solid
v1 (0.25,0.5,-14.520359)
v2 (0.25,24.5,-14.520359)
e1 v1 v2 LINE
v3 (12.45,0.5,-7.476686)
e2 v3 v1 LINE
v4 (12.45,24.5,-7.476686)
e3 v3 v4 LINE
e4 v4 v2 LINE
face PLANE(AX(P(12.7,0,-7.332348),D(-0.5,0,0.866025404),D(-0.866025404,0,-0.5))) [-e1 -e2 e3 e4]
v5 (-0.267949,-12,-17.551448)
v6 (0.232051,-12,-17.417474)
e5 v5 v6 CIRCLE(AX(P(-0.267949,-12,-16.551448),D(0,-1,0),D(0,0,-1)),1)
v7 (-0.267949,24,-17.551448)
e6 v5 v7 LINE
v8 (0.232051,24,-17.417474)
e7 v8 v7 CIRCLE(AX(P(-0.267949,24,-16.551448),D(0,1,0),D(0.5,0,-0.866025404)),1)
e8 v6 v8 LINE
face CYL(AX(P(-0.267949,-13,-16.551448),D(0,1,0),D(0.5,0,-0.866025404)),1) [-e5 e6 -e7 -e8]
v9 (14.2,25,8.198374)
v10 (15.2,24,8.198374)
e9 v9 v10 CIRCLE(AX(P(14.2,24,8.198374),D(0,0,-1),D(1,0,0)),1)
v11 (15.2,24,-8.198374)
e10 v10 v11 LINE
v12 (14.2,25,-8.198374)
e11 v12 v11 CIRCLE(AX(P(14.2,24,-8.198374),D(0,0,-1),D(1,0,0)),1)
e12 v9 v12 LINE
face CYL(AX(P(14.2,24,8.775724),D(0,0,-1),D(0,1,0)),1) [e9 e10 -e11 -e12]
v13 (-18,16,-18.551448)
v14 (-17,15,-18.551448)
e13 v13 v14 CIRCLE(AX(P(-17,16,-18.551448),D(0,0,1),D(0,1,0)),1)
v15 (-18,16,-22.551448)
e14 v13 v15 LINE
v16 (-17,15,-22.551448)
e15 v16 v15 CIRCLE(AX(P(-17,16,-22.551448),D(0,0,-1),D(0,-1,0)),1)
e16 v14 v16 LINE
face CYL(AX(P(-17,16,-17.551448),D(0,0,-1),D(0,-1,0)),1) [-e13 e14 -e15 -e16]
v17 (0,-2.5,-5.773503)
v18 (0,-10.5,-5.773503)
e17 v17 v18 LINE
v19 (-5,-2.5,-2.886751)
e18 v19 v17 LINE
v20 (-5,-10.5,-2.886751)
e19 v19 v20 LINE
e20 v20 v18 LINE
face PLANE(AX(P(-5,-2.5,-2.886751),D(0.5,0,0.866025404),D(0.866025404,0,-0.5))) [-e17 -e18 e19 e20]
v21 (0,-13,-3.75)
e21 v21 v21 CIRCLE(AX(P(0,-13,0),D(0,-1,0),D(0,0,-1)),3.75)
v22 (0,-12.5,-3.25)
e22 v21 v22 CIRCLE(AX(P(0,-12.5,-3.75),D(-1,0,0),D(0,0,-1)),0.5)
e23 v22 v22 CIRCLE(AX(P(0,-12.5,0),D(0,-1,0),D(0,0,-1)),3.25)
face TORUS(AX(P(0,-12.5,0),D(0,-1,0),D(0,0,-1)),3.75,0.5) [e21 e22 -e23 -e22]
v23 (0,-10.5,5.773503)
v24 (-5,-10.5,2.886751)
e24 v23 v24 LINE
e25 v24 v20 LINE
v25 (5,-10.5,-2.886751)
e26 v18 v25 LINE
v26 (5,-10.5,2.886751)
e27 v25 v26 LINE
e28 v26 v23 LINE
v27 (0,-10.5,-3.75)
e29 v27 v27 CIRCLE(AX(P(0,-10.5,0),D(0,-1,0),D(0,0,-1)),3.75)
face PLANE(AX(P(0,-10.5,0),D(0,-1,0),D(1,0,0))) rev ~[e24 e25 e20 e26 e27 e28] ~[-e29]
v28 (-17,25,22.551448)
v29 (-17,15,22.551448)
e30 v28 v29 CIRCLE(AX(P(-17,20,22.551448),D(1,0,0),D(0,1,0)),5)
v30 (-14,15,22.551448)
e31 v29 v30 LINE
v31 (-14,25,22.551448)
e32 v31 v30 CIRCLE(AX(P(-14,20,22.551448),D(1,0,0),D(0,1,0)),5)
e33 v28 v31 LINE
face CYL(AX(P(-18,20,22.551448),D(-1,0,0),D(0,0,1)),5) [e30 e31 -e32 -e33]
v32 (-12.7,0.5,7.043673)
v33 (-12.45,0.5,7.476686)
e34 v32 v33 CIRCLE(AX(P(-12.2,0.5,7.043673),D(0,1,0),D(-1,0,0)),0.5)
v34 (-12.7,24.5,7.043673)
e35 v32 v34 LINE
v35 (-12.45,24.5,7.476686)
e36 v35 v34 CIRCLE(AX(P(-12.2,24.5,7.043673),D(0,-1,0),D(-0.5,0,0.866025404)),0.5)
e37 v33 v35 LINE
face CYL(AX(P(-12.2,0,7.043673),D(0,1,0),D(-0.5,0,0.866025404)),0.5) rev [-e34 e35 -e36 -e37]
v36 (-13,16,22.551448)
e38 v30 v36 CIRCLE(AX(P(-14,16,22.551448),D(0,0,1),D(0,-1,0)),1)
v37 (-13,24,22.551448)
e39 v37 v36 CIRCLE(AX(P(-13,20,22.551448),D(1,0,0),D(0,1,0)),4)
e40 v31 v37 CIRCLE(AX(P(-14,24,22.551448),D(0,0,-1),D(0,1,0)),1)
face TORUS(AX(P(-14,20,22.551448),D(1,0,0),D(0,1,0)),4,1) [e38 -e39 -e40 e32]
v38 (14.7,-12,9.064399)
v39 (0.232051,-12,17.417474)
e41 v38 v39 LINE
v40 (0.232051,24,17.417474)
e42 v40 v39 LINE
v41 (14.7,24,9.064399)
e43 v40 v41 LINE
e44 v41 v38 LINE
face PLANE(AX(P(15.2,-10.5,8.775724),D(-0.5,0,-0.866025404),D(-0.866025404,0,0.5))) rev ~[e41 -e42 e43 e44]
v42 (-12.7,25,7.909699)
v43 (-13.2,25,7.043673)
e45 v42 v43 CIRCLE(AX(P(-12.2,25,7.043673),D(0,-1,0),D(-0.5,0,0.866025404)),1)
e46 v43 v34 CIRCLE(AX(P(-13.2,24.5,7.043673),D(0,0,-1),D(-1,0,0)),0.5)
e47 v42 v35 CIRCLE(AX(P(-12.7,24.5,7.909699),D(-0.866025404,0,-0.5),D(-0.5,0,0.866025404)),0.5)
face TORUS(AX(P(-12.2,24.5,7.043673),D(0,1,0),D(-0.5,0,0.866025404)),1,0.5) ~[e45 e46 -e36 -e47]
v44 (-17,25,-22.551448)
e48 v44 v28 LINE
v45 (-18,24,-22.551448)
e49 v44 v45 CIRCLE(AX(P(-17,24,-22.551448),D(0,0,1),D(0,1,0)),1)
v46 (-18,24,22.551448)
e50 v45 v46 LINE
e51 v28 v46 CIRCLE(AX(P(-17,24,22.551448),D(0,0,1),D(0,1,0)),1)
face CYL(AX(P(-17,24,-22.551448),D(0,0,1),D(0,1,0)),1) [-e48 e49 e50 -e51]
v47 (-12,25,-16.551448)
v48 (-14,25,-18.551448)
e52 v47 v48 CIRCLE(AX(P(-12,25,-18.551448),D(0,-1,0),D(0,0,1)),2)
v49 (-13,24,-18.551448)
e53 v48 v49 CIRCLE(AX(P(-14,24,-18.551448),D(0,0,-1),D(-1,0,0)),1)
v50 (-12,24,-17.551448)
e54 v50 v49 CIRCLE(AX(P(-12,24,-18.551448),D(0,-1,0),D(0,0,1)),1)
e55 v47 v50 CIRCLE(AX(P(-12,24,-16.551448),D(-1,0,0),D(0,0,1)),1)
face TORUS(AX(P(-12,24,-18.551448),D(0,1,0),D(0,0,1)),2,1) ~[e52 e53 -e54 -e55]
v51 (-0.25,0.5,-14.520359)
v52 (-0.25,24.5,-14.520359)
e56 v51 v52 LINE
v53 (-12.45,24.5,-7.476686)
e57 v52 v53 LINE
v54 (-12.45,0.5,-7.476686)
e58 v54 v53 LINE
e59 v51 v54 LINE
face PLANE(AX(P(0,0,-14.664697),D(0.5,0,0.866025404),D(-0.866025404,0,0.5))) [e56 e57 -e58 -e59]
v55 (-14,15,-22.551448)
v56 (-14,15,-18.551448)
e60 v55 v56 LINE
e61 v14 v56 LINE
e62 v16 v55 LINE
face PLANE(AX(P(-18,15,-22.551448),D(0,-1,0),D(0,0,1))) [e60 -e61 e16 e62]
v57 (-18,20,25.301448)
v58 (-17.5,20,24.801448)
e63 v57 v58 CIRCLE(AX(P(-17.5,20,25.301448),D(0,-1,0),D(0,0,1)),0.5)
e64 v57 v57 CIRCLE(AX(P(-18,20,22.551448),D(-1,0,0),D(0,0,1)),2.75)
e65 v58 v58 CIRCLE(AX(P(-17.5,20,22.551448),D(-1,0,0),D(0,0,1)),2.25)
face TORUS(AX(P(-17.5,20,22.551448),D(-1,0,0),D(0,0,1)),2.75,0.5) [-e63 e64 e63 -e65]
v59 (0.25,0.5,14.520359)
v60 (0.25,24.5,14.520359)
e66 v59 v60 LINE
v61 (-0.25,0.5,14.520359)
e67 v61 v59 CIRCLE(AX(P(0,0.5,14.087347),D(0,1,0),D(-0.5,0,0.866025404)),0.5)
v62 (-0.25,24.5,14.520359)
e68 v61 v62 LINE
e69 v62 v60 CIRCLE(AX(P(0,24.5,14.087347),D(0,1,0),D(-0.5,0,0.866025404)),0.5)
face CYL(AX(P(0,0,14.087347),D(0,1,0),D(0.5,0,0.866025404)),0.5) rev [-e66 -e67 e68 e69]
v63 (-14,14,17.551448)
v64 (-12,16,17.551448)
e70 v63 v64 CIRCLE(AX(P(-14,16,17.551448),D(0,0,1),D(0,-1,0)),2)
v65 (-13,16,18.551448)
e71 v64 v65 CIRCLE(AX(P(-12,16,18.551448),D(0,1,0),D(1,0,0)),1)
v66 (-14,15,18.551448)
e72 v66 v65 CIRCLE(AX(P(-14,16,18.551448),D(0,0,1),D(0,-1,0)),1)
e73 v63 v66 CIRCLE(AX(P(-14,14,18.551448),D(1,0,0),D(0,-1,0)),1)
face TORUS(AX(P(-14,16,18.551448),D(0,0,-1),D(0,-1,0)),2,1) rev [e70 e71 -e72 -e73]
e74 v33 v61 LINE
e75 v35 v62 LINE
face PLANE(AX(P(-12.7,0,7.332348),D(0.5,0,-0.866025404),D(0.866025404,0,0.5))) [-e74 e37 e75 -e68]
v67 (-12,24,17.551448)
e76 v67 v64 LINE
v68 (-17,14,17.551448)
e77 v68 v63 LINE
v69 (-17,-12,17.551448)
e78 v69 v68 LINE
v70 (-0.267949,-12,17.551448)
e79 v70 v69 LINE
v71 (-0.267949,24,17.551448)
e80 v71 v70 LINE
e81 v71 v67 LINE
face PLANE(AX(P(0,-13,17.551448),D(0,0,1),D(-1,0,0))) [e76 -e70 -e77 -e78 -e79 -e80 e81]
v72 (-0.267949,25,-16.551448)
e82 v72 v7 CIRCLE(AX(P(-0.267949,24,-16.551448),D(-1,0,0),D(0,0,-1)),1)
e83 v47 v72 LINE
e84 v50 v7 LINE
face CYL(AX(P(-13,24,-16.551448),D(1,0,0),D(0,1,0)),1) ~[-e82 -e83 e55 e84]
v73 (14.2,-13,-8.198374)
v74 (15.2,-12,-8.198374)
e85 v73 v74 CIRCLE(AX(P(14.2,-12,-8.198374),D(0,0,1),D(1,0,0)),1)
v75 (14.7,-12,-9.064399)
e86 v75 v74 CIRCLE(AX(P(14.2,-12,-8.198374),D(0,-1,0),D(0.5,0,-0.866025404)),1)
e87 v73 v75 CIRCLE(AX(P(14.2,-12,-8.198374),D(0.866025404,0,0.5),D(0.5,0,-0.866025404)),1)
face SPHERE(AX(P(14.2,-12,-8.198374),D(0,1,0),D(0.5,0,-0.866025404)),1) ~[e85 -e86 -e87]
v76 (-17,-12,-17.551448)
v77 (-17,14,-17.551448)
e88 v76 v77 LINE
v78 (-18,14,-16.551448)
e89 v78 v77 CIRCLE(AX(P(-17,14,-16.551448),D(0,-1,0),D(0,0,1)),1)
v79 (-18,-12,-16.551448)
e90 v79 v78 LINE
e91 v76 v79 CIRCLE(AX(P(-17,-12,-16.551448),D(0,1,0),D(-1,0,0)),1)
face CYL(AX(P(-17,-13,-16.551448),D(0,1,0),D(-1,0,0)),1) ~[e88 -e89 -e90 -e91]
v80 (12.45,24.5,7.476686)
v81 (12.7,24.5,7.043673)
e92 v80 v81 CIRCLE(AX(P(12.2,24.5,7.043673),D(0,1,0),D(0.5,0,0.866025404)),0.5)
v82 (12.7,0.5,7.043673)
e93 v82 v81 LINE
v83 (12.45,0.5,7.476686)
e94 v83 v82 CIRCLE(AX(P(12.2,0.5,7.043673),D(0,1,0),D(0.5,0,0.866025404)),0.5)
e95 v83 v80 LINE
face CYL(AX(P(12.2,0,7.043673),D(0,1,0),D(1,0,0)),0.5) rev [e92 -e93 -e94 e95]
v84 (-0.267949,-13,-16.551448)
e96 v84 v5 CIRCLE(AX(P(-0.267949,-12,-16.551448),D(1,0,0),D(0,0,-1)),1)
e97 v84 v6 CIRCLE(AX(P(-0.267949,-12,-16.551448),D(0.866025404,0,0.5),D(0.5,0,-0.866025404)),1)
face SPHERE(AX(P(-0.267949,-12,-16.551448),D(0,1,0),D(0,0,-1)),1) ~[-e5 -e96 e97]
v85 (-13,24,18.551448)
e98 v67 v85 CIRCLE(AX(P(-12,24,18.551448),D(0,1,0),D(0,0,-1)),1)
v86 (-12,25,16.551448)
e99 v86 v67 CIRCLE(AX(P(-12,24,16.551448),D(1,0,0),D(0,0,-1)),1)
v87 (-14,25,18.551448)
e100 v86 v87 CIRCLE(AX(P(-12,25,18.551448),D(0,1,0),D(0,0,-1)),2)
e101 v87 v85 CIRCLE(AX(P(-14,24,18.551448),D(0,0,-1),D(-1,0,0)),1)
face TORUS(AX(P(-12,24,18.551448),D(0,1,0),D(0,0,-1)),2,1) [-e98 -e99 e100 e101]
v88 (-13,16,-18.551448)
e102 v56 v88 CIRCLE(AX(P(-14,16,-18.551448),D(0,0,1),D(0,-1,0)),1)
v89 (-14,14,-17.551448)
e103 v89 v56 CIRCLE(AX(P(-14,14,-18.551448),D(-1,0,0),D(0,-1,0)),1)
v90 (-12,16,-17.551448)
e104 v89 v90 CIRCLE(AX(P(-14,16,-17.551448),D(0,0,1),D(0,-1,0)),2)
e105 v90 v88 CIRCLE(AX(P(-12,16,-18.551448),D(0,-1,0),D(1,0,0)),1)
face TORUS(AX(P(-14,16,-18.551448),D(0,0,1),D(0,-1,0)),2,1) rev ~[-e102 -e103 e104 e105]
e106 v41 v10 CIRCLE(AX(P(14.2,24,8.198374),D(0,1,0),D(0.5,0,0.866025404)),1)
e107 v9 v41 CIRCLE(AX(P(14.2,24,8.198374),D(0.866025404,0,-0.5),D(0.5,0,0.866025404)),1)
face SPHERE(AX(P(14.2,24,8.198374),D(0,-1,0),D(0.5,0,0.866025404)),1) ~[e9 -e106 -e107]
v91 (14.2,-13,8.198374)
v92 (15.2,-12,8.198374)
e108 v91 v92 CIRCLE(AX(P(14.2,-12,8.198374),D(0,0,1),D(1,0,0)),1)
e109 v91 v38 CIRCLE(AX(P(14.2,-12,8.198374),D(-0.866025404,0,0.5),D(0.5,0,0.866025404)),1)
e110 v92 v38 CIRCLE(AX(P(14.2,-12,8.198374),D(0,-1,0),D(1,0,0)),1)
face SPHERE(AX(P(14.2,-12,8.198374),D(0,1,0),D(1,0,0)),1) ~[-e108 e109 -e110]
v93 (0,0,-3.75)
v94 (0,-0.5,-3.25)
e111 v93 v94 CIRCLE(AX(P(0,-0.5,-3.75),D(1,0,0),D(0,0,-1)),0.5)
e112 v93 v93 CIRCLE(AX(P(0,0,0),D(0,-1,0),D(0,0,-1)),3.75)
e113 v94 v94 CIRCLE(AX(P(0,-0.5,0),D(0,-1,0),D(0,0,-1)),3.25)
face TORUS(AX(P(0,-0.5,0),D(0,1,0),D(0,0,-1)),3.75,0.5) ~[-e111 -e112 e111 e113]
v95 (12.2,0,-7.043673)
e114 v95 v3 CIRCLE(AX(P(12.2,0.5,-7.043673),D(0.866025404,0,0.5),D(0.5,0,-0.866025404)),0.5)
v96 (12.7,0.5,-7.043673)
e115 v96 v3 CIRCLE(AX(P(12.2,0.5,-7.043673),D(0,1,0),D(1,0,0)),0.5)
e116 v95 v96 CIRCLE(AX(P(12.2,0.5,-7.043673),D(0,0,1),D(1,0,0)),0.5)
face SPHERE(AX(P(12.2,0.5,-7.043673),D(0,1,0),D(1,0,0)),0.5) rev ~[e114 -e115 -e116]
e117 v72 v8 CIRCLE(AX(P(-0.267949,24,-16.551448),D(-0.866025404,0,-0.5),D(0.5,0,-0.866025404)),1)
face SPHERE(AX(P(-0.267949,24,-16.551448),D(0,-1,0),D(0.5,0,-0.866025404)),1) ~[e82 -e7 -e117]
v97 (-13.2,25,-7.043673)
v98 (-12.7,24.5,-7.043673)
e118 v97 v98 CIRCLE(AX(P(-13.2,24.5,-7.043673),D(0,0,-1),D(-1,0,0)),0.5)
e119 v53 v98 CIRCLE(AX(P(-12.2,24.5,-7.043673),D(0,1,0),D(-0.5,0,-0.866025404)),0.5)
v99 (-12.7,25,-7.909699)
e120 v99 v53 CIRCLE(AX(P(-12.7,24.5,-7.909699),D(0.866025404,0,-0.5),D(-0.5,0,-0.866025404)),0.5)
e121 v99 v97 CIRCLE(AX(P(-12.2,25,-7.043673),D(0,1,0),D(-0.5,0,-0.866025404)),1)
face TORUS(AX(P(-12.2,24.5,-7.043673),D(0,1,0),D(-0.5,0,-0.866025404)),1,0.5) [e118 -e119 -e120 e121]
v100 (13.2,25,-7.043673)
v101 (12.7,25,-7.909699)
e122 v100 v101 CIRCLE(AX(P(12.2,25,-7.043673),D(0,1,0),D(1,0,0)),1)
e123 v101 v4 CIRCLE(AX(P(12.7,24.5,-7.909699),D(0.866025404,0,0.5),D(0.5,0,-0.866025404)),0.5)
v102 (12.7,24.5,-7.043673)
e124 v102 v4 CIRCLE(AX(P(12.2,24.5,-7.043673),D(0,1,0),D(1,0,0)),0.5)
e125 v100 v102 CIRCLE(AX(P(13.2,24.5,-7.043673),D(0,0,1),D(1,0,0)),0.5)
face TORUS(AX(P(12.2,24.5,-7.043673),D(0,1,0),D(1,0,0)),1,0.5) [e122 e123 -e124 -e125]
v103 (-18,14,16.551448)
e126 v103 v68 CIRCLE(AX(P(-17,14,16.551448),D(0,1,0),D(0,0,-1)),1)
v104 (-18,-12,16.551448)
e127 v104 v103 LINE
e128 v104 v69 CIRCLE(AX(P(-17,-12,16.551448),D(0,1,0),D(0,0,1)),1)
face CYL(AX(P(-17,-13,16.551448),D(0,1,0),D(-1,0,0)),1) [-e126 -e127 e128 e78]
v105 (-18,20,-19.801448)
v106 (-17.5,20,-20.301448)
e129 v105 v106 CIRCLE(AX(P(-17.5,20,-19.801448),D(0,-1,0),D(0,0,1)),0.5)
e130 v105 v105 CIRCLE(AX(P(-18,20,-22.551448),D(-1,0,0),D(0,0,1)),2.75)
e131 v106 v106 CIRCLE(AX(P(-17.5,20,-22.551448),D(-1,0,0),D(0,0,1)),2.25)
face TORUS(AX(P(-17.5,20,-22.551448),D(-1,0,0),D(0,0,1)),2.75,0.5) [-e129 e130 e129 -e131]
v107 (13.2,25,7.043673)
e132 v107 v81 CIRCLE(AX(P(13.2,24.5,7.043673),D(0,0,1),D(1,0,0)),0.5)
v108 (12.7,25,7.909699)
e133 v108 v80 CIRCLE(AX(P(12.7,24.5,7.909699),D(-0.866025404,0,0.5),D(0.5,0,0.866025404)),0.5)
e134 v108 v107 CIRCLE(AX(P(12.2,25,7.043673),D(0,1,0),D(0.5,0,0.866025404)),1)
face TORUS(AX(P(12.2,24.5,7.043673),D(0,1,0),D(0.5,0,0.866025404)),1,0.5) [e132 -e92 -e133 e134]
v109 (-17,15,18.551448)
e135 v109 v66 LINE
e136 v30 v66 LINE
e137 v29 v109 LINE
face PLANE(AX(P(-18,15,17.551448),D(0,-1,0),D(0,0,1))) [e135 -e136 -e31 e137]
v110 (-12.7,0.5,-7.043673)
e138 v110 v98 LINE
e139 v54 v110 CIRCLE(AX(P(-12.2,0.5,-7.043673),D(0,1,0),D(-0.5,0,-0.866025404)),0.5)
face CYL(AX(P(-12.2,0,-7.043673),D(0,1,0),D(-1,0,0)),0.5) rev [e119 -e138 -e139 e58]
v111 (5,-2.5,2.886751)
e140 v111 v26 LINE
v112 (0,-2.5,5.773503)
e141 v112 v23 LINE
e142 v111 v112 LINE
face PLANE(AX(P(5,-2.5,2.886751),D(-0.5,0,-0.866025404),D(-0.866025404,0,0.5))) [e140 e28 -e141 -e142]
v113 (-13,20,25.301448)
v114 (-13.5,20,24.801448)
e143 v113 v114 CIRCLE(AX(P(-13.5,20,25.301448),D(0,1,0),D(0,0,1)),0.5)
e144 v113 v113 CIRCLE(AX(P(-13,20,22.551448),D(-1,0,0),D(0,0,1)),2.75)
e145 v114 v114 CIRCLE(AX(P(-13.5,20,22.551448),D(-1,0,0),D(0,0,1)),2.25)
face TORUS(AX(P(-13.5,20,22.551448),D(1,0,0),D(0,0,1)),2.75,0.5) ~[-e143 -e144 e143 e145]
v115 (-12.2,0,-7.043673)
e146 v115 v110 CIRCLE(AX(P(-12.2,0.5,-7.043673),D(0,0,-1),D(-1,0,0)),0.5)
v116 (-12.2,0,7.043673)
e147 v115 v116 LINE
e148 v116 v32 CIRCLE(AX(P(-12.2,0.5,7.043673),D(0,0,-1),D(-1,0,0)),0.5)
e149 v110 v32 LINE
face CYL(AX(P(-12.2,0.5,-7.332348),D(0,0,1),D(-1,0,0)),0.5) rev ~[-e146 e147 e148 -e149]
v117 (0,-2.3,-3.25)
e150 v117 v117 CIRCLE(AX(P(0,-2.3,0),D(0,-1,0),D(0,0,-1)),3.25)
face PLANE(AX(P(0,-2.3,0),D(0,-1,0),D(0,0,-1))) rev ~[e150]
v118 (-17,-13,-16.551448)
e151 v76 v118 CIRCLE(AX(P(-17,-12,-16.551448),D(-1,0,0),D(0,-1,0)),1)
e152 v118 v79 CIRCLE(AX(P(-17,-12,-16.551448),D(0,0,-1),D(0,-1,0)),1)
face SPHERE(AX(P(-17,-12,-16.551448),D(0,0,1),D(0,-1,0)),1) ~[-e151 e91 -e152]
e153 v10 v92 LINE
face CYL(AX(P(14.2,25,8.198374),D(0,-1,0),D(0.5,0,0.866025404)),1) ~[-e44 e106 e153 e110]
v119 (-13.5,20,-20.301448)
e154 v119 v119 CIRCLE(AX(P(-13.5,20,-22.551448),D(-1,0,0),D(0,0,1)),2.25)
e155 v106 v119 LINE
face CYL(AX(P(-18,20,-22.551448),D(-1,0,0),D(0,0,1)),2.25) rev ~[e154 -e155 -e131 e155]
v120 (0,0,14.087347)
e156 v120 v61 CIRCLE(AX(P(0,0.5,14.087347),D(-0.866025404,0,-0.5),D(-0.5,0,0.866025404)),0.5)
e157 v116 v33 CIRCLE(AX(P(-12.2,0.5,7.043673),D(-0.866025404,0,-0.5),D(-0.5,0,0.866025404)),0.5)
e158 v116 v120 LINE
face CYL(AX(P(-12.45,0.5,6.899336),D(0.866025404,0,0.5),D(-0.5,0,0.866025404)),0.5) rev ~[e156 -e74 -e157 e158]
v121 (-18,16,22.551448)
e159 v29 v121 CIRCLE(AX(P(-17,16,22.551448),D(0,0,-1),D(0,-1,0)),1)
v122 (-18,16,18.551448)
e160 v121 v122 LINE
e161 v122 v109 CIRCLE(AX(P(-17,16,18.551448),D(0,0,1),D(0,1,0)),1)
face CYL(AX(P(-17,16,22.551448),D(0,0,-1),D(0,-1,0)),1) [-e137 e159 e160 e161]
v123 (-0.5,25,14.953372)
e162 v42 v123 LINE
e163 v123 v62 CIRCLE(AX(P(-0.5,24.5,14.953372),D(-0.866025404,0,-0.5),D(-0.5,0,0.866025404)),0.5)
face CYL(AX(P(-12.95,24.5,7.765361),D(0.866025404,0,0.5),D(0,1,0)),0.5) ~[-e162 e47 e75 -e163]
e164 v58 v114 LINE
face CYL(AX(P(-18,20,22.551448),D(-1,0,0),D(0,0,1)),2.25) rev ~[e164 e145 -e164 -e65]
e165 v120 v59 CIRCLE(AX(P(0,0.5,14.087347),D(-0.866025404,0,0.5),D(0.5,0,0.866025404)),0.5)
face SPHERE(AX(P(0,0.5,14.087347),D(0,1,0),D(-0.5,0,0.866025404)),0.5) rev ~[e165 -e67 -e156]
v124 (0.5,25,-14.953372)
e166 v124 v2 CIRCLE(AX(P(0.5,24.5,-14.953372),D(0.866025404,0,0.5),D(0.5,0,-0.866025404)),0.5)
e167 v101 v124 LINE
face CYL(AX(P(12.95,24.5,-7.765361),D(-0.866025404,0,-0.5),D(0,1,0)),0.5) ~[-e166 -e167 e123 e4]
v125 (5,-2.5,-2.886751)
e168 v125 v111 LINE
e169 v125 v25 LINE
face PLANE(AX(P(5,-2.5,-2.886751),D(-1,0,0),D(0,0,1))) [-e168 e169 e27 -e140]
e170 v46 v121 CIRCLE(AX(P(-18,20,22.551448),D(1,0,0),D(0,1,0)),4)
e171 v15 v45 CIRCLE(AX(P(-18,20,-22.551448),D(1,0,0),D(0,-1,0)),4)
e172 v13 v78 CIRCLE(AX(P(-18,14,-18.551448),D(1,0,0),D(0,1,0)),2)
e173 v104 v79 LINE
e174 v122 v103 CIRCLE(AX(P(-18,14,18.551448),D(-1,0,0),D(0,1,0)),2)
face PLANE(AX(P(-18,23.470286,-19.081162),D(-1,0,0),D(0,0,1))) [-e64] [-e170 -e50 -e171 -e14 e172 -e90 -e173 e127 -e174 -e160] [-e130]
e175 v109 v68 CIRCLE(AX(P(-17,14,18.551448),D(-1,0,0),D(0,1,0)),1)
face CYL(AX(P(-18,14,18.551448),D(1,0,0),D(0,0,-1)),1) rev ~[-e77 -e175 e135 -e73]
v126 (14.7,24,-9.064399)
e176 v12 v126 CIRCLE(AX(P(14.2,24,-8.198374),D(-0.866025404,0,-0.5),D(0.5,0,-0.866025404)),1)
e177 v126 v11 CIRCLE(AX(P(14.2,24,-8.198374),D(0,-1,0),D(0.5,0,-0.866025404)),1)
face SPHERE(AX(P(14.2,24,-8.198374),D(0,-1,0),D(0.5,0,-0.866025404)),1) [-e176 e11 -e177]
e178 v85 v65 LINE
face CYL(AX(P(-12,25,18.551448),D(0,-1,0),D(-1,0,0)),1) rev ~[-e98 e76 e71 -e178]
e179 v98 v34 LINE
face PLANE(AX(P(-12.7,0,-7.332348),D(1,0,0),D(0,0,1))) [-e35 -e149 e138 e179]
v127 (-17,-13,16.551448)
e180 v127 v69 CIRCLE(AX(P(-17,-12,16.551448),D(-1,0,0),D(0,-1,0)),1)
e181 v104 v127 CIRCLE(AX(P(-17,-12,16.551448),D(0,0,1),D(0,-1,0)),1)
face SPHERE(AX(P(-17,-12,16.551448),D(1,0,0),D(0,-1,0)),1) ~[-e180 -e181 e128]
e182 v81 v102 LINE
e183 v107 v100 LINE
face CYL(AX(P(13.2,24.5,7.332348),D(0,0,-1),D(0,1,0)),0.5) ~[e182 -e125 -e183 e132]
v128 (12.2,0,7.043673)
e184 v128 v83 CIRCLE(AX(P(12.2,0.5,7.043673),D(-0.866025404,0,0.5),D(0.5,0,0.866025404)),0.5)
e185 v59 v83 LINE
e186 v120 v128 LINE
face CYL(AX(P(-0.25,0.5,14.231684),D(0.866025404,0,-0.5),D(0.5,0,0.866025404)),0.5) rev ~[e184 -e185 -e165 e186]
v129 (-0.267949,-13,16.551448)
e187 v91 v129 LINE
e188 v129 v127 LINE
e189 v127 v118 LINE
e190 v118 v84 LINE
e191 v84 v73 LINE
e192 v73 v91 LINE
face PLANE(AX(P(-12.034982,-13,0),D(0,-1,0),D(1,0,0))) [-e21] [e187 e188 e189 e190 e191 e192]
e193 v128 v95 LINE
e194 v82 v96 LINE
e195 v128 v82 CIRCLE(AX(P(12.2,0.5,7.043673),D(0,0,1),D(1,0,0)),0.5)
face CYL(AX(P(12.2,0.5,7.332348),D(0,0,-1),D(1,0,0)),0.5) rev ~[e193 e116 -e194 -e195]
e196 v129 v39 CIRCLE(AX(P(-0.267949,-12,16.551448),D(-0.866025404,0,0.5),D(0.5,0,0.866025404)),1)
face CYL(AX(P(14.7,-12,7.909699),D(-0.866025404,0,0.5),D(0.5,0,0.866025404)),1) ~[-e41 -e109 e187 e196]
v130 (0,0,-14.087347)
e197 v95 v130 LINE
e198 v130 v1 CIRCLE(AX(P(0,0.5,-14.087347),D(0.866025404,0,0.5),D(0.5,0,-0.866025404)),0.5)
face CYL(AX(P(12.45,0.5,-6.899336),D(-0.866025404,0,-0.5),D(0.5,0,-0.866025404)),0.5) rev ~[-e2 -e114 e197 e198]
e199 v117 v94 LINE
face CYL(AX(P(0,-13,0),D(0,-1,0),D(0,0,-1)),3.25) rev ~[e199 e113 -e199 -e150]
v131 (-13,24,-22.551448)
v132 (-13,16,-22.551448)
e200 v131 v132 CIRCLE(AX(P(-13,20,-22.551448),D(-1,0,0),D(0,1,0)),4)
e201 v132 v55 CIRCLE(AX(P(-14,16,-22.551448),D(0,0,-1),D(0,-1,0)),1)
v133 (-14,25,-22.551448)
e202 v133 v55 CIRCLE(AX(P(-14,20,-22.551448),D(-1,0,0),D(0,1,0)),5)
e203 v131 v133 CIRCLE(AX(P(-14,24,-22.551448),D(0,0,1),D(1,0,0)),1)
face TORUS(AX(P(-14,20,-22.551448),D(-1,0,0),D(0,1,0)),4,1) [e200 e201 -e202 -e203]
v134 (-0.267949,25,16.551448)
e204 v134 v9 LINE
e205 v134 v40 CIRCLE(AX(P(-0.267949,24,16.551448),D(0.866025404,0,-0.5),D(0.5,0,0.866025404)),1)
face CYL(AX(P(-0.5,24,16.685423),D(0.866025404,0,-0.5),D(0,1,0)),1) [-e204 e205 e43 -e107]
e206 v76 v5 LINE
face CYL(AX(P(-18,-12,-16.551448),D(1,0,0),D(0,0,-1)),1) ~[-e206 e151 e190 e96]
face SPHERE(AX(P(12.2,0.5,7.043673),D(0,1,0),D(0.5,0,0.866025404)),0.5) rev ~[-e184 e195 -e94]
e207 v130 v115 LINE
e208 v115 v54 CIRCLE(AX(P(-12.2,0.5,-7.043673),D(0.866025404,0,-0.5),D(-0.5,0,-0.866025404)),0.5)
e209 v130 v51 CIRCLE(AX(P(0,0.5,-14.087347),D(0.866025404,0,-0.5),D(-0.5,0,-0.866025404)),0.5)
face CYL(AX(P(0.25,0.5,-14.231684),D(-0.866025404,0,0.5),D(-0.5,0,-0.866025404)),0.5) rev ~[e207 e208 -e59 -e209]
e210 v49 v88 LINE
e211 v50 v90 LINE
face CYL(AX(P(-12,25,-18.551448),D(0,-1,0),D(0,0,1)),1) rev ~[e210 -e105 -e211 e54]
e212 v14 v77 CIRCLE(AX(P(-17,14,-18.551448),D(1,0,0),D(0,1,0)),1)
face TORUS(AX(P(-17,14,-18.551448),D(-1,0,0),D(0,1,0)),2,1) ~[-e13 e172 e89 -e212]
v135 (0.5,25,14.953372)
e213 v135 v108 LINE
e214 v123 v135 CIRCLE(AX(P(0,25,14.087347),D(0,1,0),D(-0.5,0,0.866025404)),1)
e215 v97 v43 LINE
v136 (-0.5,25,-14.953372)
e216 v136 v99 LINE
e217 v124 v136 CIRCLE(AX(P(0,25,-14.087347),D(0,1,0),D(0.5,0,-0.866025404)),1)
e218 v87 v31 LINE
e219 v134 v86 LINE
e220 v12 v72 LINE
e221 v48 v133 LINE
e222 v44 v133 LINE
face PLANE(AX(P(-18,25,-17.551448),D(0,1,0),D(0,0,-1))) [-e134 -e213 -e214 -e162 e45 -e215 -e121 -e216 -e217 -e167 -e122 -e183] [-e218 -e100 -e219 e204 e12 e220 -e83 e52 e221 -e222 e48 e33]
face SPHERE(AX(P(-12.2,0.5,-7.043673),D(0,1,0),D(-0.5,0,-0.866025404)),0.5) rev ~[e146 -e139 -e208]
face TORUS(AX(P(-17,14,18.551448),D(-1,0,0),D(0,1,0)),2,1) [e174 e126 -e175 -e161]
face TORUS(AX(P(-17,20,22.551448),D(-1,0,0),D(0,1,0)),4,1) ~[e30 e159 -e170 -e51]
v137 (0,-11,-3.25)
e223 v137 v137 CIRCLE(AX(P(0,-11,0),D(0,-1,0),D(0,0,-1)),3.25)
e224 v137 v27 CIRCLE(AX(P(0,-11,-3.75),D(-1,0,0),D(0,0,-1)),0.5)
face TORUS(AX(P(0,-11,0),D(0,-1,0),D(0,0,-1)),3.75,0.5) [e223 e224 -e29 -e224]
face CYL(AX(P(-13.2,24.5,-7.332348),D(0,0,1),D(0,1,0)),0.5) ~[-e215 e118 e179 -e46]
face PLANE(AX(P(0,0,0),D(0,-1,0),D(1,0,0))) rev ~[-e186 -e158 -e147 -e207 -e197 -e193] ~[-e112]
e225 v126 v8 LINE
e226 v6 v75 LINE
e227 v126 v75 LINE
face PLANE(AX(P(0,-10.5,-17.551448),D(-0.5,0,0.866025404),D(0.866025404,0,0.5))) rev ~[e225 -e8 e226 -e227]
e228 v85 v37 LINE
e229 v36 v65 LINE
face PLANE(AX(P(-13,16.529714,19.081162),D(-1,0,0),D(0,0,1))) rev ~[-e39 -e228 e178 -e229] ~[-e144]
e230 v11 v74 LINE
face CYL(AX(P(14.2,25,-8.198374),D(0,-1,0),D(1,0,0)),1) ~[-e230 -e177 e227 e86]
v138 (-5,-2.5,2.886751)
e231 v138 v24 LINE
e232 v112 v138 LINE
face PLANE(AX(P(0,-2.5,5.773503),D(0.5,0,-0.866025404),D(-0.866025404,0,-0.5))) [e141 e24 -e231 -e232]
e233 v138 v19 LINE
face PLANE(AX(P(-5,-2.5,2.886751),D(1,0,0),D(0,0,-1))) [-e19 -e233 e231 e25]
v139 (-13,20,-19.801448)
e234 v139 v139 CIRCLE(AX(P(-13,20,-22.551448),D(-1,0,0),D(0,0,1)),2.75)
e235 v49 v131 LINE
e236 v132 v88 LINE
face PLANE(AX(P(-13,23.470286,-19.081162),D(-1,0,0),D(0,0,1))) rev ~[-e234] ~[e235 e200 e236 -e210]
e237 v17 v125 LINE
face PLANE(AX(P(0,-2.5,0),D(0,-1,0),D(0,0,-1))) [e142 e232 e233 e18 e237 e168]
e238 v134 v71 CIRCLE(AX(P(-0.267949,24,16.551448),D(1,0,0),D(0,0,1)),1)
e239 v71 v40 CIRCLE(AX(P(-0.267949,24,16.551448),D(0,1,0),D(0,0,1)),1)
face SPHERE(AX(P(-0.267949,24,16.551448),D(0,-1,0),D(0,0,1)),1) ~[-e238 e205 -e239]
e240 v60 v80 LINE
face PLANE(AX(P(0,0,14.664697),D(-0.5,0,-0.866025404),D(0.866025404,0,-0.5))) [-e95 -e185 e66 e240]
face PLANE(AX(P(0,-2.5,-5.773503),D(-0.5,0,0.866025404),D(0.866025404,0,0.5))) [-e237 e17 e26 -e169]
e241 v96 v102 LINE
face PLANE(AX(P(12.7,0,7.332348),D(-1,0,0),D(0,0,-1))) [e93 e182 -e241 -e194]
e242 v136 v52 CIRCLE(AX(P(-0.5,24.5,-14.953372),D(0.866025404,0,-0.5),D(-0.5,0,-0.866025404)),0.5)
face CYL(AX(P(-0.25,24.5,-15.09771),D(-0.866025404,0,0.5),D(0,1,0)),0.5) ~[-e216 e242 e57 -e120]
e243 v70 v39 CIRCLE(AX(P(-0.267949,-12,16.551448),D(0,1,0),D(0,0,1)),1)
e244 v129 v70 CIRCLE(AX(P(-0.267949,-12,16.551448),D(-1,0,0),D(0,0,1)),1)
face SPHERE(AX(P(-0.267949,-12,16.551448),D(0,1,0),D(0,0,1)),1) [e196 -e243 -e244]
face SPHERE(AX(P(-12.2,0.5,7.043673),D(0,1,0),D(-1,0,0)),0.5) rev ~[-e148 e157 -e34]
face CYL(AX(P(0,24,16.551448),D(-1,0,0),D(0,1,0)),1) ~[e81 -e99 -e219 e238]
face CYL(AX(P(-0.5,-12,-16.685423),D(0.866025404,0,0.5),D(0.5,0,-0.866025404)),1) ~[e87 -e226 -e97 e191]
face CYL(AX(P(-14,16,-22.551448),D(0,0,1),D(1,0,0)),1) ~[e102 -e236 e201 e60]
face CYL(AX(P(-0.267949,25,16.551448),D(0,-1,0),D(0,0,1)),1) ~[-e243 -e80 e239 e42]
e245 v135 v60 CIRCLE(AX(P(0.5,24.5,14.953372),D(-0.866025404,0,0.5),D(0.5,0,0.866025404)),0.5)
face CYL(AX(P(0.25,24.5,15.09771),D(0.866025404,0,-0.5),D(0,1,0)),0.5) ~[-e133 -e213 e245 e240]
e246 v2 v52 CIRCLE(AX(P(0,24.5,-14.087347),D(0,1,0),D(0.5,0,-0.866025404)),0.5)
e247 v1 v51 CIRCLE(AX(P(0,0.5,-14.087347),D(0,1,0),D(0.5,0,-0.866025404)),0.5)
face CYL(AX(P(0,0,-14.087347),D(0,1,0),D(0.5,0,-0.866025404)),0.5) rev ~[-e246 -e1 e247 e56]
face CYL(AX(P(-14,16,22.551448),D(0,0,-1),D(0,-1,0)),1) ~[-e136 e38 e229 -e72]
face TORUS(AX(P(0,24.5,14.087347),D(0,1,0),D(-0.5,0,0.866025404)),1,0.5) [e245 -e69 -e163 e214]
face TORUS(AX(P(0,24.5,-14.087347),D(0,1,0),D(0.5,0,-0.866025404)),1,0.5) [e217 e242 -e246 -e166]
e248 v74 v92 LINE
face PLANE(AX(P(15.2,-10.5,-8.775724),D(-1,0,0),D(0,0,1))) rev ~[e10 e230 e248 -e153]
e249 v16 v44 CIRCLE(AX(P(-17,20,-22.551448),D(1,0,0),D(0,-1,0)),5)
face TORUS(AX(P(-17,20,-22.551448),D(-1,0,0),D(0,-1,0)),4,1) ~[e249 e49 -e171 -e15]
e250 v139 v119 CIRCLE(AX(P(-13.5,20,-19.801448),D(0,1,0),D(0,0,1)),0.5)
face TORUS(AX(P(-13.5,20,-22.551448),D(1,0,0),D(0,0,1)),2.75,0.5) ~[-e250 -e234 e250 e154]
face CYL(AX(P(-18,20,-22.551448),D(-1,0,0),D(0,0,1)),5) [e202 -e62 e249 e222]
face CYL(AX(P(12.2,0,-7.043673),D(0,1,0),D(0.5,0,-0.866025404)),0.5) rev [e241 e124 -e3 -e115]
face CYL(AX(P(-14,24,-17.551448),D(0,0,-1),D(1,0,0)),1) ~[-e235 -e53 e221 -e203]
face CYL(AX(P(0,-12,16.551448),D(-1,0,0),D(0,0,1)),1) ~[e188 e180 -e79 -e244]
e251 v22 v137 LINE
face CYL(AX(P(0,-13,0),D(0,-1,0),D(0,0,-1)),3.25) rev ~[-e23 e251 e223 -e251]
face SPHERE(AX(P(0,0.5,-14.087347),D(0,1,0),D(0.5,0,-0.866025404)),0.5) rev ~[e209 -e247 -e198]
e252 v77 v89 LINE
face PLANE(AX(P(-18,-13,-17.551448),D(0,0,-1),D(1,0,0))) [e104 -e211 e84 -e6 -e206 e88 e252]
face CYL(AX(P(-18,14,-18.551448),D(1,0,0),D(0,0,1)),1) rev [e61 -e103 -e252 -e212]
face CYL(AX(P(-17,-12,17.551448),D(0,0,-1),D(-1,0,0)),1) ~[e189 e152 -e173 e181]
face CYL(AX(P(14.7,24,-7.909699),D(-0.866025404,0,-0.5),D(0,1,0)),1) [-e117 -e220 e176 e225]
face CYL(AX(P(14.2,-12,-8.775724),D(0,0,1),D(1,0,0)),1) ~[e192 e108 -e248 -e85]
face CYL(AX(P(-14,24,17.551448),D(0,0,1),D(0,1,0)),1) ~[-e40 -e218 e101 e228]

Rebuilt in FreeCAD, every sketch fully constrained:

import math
import FreeCAD as App
import Part
import Sketcher
Q = App.Units.Quantity


def edges_at(feature, points):
    """Names of the edges that pass closest to the given points."""
    edges = feature.Shape.Edges
    near = lambda p: min(range(len(edges)), key=lambda i: edges[i].distToShape(Part.Vertex(*p))[0])
    return sorted({f"Edge{near(p) + 1}" for p in points})

doc = App.newDocument("Part")
params = doc.addObject("Spreadsheet::Sheet", "Params")
for row, (alias, value) in enumerate([
    ("pad1_length", "25 mm"),
    ("pad2_length", "2.5 mm"),
    ("pad3_length", "8 mm"),
    ("pad4_length", "2.5 mm"),
    ("sketch5_diameter", "6.5 mm"),
    ("sketch6_width", "18 mm"),
    ("pad5_length", "38 mm"),
    ("sketch7_radius", "5 mm"),
    ("sketch7_diameter", "4.5 mm"),
    ("sketch7_height", "5 mm"),
    ("pad6_length", "5 mm"),
    ("sketch8_diameter", "6.5 mm"),
    ("pad7_length", "0.2 mm"),
    ("fillet_radius", "0.5 mm"),
    ("fillet2_radius", "1 mm"),
    ("fillet3_radius", "0.5 mm"),
], start=1):
    params.set(f"A{row}", alias)
    params.set(f"B{row}", "=" + value)
    params.setAlias(f"B{row}", alias)

body = doc.addObject("PartDesign::Body", "Body")

sketch1 = body.newObject("Sketcher::SketchObject", "Sketch")
sketch1.AttachmentSupport = (doc.getObject("XZ_Plane"), [""])
sketch1.MapMode = "FlatFace"
sketch1.addGeometry(Part.LineSegment(App.Vector(15.2, 8.775724, 0), App.Vector(15.2, -8.775724, 0)), False)
sketch1.addGeometry(Part.LineSegment(App.Vector(15.2, -8.775724, 0), App.Vector(0, -17.551448, 0)), False)
sketch1.addGeometry(Part.LineSegment(App.Vector(0, -17.551448, 0), App.Vector(-15.2, -8.775724, 0)), False)
sketch1.addGeometry(Part.LineSegment(App.Vector(-15.2, -8.775724, 0), App.Vector(-15.2, 8.775724, 0)), False)
sketch1.addGeometry(Part.LineSegment(App.Vector(-15.2, 8.775724, 0), App.Vector(0, 17.551448, 0)), False)
sketch1.addGeometry(Part.LineSegment(App.Vector(0, 17.551448, 0), App.Vector(15.2, 8.775724, 0)), False)
sketch1.addGeometry(Part.LineSegment(App.Vector(12.7, 7.332348, 0), App.Vector(0, 14.664697, 0)), False)
sketch1.addGeometry(Part.LineSegment(App.Vector(0, 14.664697, 0), App.Vector(-12.7, 7.332348, 0)), False)
sketch1.addGeometry(Part.LineSegment(App.Vector(-12.7, 7.332348, 0), App.Vector(-12.7, -7.332348, 0)), False)
sketch1.addGeometry(Part.LineSegment(App.Vector(-12.7, -7.332348, 0), App.Vector(0, -14.664697, 0)), False)
sketch1.addGeometry(Part.LineSegment(App.Vector(0, -14.664697, 0), App.Vector(12.7, -7.332348, 0)), False)
sketch1.addGeometry(Part.LineSegment(App.Vector(12.7, -7.332348, 0), App.Vector(12.7, 7.332348, 0)), False)
sketch1.addConstraint(Sketcher.Constraint("Coincident", 0, 2, 1, 1))
sketch1.addConstraint(Sketcher.Constraint("Coincident", 1, 2, 2, 1))
sketch1.addConstraint(Sketcher.Constraint("Coincident", 2, 2, 3, 1))
sketch1.addConstraint(Sketcher.Constraint("Coincident", 3, 2, 4, 1))
sketch1.addConstraint(Sketcher.Constraint("Coincident", 4, 2, 5, 1))
sketch1.addConstraint(Sketcher.Constraint("Coincident", 5, 2, 0, 1))
sketch1.addConstraint(Sketcher.Constraint("Coincident", 6, 2, 7, 1))
sketch1.addConstraint(Sketcher.Constraint("Coincident", 7, 2, 8, 1))
sketch1.addConstraint(Sketcher.Constraint("Coincident", 8, 2, 9, 1))
sketch1.addConstraint(Sketcher.Constraint("Coincident", 9, 2, 10, 1))
sketch1.addConstraint(Sketcher.Constraint("Coincident", 10, 2, 11, 1))
sketch1.addConstraint(Sketcher.Constraint("Coincident", 11, 2, 6, 1))
sketch1.addConstraint(Sketcher.Constraint("Vertical", 0))
sketch1.addConstraint(Sketcher.Constraint("Vertical", 3))
sketch1.addConstraint(Sketcher.Constraint("Vertical", 8))
sketch1.addConstraint(Sketcher.Constraint("Vertical", 11))
sketch1.addConstraint(Sketcher.Constraint("Symmetric", 0, 2, 3, 2, -1, 1))
sketch1.addConstraint(Sketcher.Constraint("Symmetric", 1, 2, 4, 2, -1, 1))
sketch1.addConstraint(Sketcher.Constraint("Symmetric", 6, 2, 9, 2, -1, 1))
sketch1.addConstraint(Sketcher.Constraint("Symmetric", 7, 2, 10, 2, -1, 1))
sketch1.addConstraint(Sketcher.Constraint("PointOnObject", 1, 2, -2))
sketch1.addConstraint(Sketcher.Constraint("PointOnObject", 6, 2, -2))
sketch1.addConstraint(Sketcher.Constraint("Parallel", 2, 5))
sketch1.addConstraint(Sketcher.Constraint("Parallel", 5, 6))
sketch1.addConstraint(Sketcher.Constraint("Parallel", 4, 7))
sketch1.addConstraint(Sketcher.Constraint("Parallel", 6, 9))
sketch1.addConstraint(Sketcher.Constraint("Horizontal", 0, 2, 2, 2))
sketch1.addConstraint(Sketcher.Constraint("Angle", 1, Q("-150 deg")))
sketch1.addConstraint(Sketcher.Constraint("DistanceX", -1, 1, 0, 2, Q("15.2 mm")))
sketch1.addConstraint(Sketcher.Constraint("DistanceX", 7, 2, -1, 1, Q("12.7 mm")))
sketch1.addConstraint(Sketcher.Constraint("DistanceY", 0, 2, 0, 1, Q("17.551448 mm")))
sketch1.addConstraint(Sketcher.Constraint("DistanceY", 7, 2, 4, 2, Q("10.2191 mm")))
pad1 = body.newObject("PartDesign::Pad", "Pad")
pad1.Profile = sketch1
pad1.setExpression("Length", "Params.pad1_length")
pad1.Reversed = True

sketch2 = body.newObject("Sketcher::SketchObject", "Sketch001")
sketch2.AttachmentSupport = (doc.getObject("XZ_Plane"), [""])
sketch2.MapMode = "FlatFace"
sketch2.addGeometry(Part.LineSegment(App.Vector(0, -17.551448, 0), App.Vector(15.2, -8.775724, 0)), False)
sketch2.addGeometry(Part.LineSegment(App.Vector(15.2, -8.775724, 0), App.Vector(15.2, 8.775724, 0)), False)
sketch2.addGeometry(Part.LineSegment(App.Vector(15.2, 8.775724, 0), App.Vector(0, 17.551448, 0)), False)
sketch2.addGeometry(Part.LineSegment(App.Vector(0, 17.551448, 0), App.Vector(-15.2, 8.775724, 0)), False)
sketch2.addGeometry(Part.LineSegment(App.Vector(-15.2, 8.775724, 0), App.Vector(-15.2, -8.775724, 0)), False)
sketch2.addGeometry(Part.LineSegment(App.Vector(-15.2, -8.775724, 0), App.Vector(0, -17.551448, 0)), False)
sketch2.addConstraint(Sketcher.Constraint("Coincident", 0, 2, 1, 1))
sketch2.addConstraint(Sketcher.Constraint("Coincident", 1, 2, 2, 1))
sketch2.addConstraint(Sketcher.Constraint("Coincident", 2, 2, 3, 1))
sketch2.addConstraint(Sketcher.Constraint("Coincident", 3, 2, 4, 1))
sketch2.addConstraint(Sketcher.Constraint("Coincident", 4, 2, 5, 1))
sketch2.addConstraint(Sketcher.Constraint("Coincident", 5, 2, 0, 1))
sketch2.addConstraint(Sketcher.Constraint("Vertical", 1))
sketch2.addConstraint(Sketcher.Constraint("Vertical", 4))
sketch2.addConstraint(Sketcher.Constraint("Symmetric", 0, 2, 3, 2, -1, 1))
sketch2.addConstraint(Sketcher.Constraint("Symmetric", 2, 2, 5, 2, -1, 1))
sketch2.addConstraint(Sketcher.Constraint("PointOnObject", 2, 2, -2))
sketch2.addConstraint(Sketcher.Constraint("Parallel", 2, 5))
sketch2.addConstraint(Sketcher.Constraint("Horizontal", 1, 2, 3, 2))
sketch2.addConstraint(Sketcher.Constraint("Angle", 0, Q("30 deg")))
sketch2.addConstraint(Sketcher.Constraint("DistanceX", -1, 1, 0, 2, Q("15.2 mm")))
sketch2.addConstraint(Sketcher.Constraint("DistanceY", 1, 1, 1, 2, Q("17.551448 mm")))
pad2 = body.newObject("PartDesign::Pad", "Pad001")
pad2.Profile = sketch2
pad2.setExpression("Length", "Params.pad2_length")

sketch3 = body.newObject("Sketcher::SketchObject", "Sketch002")
sketch3.AttachmentSupport = (doc.getObject("XZ_Plane"), [""])
sketch3.MapMode = "FlatFace"
sketch3.AttachmentOffset = App.Placement(App.Vector(0, 0, 2.5), App.Rotation())
sketch3.addGeometry(Part.LineSegment(App.Vector(0, -17.551448, 0), App.Vector(15.2, -8.775724, 0)), False)
sketch3.addGeometry(Part.LineSegment(App.Vector(15.2, -8.775724, 0), App.Vector(15.2, 8.775724, 0)), False)
sketch3.addGeometry(Part.LineSegment(App.Vector(15.2, 8.775724, 0), App.Vector(0, 17.551448, 0)), False)
sketch3.addGeometry(Part.LineSegment(App.Vector(0, 17.551448, 0), App.Vector(-15.2, 8.775724, 0)), False)
sketch3.addGeometry(Part.LineSegment(App.Vector(-15.2, 8.775724, 0), App.Vector(-15.2, -8.775724, 0)), False)
sketch3.addGeometry(Part.LineSegment(App.Vector(-15.2, -8.775724, 0), App.Vector(0, -17.551448, 0)), False)
sketch3.addGeometry(Part.LineSegment(App.Vector(5, -2.886751, 0), App.Vector(0, -5.773503, 0)), False)
sketch3.addGeometry(Part.LineSegment(App.Vector(0, -5.773503, 0), App.Vector(-5, -2.886751, 0)), False)
sketch3.addGeometry(Part.LineSegment(App.Vector(-5, -2.886751, 0), App.Vector(-5, 2.886751, 0)), False)
sketch3.addGeometry(Part.LineSegment(App.Vector(-5, 2.886751, 0), App.Vector(0, 5.773503, 0)), False)
sketch3.addGeometry(Part.LineSegment(App.Vector(0, 5.773503, 0), App.Vector(5, 2.886751, 0)), False)
sketch3.addGeometry(Part.LineSegment(App.Vector(5, 2.886751, 0), App.Vector(5, -2.886751, 0)), False)
sketch3.addConstraint(Sketcher.Constraint("Coincident", 0, 2, 1, 1))
sketch3.addConstraint(Sketcher.Constraint("Coincident", 1, 2, 2, 1))
sketch3.addConstraint(Sketcher.Constraint("Coincident", 2, 2, 3, 1))
sketch3.addConstraint(Sketcher.Constraint("Coincident", 3, 2, 4, 1))
sketch3.addConstraint(Sketcher.Constraint("Coincident", 4, 2, 5, 1))
sketch3.addConstraint(Sketcher.Constraint("Coincident", 5, 2, 0, 1))
sketch3.addConstraint(Sketcher.Constraint("Coincident", 6, 2, 7, 1))
sketch3.addConstraint(Sketcher.Constraint("Coincident", 7, 2, 8, 1))
sketch3.addConstraint(Sketcher.Constraint("Coincident", 8, 2, 9, 1))
sketch3.addConstraint(Sketcher.Constraint("Coincident", 9, 2, 10, 1))
sketch3.addConstraint(Sketcher.Constraint("Coincident", 10, 2, 11, 1))
sketch3.addConstraint(Sketcher.Constraint("Coincident", 11, 2, 6, 1))
sketch3.addConstraint(Sketcher.Constraint("Vertical", 1))
sketch3.addConstraint(Sketcher.Constraint("Vertical", 4))
sketch3.addConstraint(Sketcher.Constraint("Vertical", 8))
sketch3.addConstraint(Sketcher.Constraint("Vertical", 11))
sketch3.addConstraint(Sketcher.Constraint("Symmetric", 0, 2, 3, 2, -1, 1))
sketch3.addConstraint(Sketcher.Constraint("Symmetric", 2, 2, 5, 2, -1, 1))
sketch3.addConstraint(Sketcher.Constraint("Symmetric", 6, 2, 9, 2, -1, 1))
sketch3.addConstraint(Sketcher.Constraint("Symmetric", 7, 2, 10, 2, -1, 1))
sketch3.addConstraint(Sketcher.Constraint("PointOnObject", 2, 2, -2))
sketch3.addConstraint(Sketcher.Constraint("PointOnObject", 6, 2, -2))
sketch3.addConstraint(Sketcher.Constraint("Parallel", 2, 5))
sketch3.addConstraint(Sketcher.Constraint("Parallel", 3, 6))
sketch3.addConstraint(Sketcher.Constraint("Parallel", 5, 7))
sketch3.addConstraint(Sketcher.Constraint("Parallel", 6, 9))
sketch3.addConstraint(Sketcher.Constraint("Horizontal", 1, 2, 3, 2))
sketch3.addConstraint(Sketcher.Constraint("Angle", 0, Q("30 deg")))
sketch3.addConstraint(Sketcher.Constraint("DistanceX", 7, 2, -1, 1, Q("5 mm")))
sketch3.addConstraint(Sketcher.Constraint("DistanceX", -1, 1, 0, 2, Q("15.2 mm")))
sketch3.addConstraint(Sketcher.Constraint("DistanceY", 1, 1, 1, 2, Q("17.551448 mm")))
sketch3.addConstraint(Sketcher.Constraint("DistanceY", 7, 2, 2, 2, Q("20.4382 mm")))
pad3 = body.newObject("PartDesign::Pad", "Pad002")
pad3.Profile = sketch3
pad3.setExpression("Length", "Params.pad3_length")

sketch4 = body.newObject("Sketcher::SketchObject", "Sketch003")
sketch4.AttachmentSupport = (doc.getObject("XZ_Plane"), [""])
sketch4.MapMode = "FlatFace"
sketch4.AttachmentOffset = App.Placement(App.Vector(0, 0, 10.5), App.Rotation())
sketch4.addGeometry(Part.LineSegment(App.Vector(0, -17.551448, 0), App.Vector(15.2, -8.775724, 0)), False)
sketch4.addGeometry(Part.LineSegment(App.Vector(15.2, -8.775724, 0), App.Vector(15.2, 8.775724, 0)), False)
sketch4.addGeometry(Part.LineSegment(App.Vector(15.2, 8.775724, 0), App.Vector(0, 17.551448, 0)), False)
sketch4.addGeometry(Part.LineSegment(App.Vector(0, 17.551448, 0), App.Vector(-15.2, 8.775724, 0)), False)
sketch4.addGeometry(Part.LineSegment(App.Vector(-15.2, 8.775724, 0), App.Vector(-15.2, -8.775724, 0)), False)
sketch4.addGeometry(Part.LineSegment(App.Vector(-15.2, -8.775724, 0), App.Vector(0, -17.551448, 0)), False)
sketch4.addConstraint(Sketcher.Constraint("Coincident", 0, 2, 1, 1))
sketch4.addConstraint(Sketcher.Constraint("Coincident", 1, 2, 2, 1))
sketch4.addConstraint(Sketcher.Constraint("Coincident", 2, 2, 3, 1))
sketch4.addConstraint(Sketcher.Constraint("Coincident", 3, 2, 4, 1))
sketch4.addConstraint(Sketcher.Constraint("Coincident", 4, 2, 5, 1))
sketch4.addConstraint(Sketcher.Constraint("Coincident", 5, 2, 0, 1))
sketch4.addConstraint(Sketcher.Constraint("Vertical", 1))
sketch4.addConstraint(Sketcher.Constraint("Vertical", 4))
sketch4.addConstraint(Sketcher.Constraint("Symmetric", 0, 2, 3, 2, -1, 1))
sketch4.addConstraint(Sketcher.Constraint("Symmetric", 2, 2, 5, 2, -1, 1))
sketch4.addConstraint(Sketcher.Constraint("PointOnObject", 2, 2, -2))
sketch4.addConstraint(Sketcher.Constraint("Parallel", 2, 5))
sketch4.addConstraint(Sketcher.Constraint("Horizontal", 1, 2, 3, 2))
sketch4.addConstraint(Sketcher.Constraint("Angle", 0, Q("30 deg")))
sketch4.addConstraint(Sketcher.Constraint("DistanceX", -1, 1, 0, 2, Q("15.2 mm")))
sketch4.addConstraint(Sketcher.Constraint("DistanceY", 1, 1, 1, 2, Q("17.551448 mm")))
pad4 = body.newObject("PartDesign::Pad", "Pad003")
pad4.Profile = sketch4
pad4.setExpression("Length", "Params.pad4_length")

sketch5 = body.newObject("Sketcher::SketchObject", "Sketch004")
sketch5.AttachmentSupport = (doc.getObject("XZ_Plane"), [""])
sketch5.MapMode = "FlatFace"
sketch5.AttachmentOffset = App.Placement(App.Vector(0, 0, 13), App.Rotation())
sketch5.addGeometry(Part.Circle(App.Vector(0, 0, 0), App.Vector(0, 0, 1), 3.25), False)
sketch5.addConstraint(Sketcher.Constraint("Coincident", 0, 3, -1, 1))
sketch5.addConstraint(Sketcher.Constraint("Diameter", 0, Q("6.5 mm")))
sketch5.setExpression("Constraints[1]", "Params.sketch5_diameter")
pocket1 = body.newObject("PartDesign::Pocket", "Pocket")
pocket1.Profile = sketch5
pocket1.Type = "ThroughAll"

sketch6 = body.newObject("Sketcher::SketchObject", "Sketch005")
sketch6.AttachmentSupport = (doc.getObject("XZ_Plane"), [""])
sketch6.MapMode = "FlatFace"
sketch6.AttachmentOffset = App.Placement(App.Vector(0, 0, 13), App.Rotation())
sketch6.addGeometry(Part.LineSegment(App.Vector(0, 17.551448, 0), App.Vector(-18, 17.551448, 0)), False)
sketch6.addGeometry(Part.LineSegment(App.Vector(-18, 17.551448, 0), App.Vector(-18, -17.551448, 0)), False)
sketch6.addGeometry(Part.LineSegment(App.Vector(-18, -17.551448, 0), App.Vector(0, -17.551448, 0)), False)
sketch6.addGeometry(Part.LineSegment(App.Vector(0, -17.551448, 0), App.Vector(-15.2, -8.775724, 0)), False)
sketch6.addGeometry(Part.LineSegment(App.Vector(-15.2, -8.775724, 0), App.Vector(-15.2, 8.775724, 0)), False)
sketch6.addGeometry(Part.LineSegment(App.Vector(-15.2, 8.775724, 0), App.Vector(0, 17.551448, 0)), False)
sketch6.addConstraint(Sketcher.Constraint("Coincident", 0, 2, 1, 1))
sketch6.addConstraint(Sketcher.Constraint("Coincident", 1, 2, 2, 1))
sketch6.addConstraint(Sketcher.Constraint("Coincident", 2, 2, 3, 1))
sketch6.addConstraint(Sketcher.Constraint("Coincident", 3, 2, 4, 1))
sketch6.addConstraint(Sketcher.Constraint("Coincident", 4, 2, 5, 1))
sketch6.addConstraint(Sketcher.Constraint("Coincident", 5, 2, 0, 1))
sketch6.addConstraint(Sketcher.Constraint("Horizontal", 0))
sketch6.addConstraint(Sketcher.Constraint("Vertical", 1))
sketch6.addConstraint(Sketcher.Constraint("Horizontal", 2))
sketch6.addConstraint(Sketcher.Constraint("Vertical", 4))
sketch6.addConstraint(Sketcher.Constraint("Symmetric", 2, 2, 5, 2, -1, 1))
sketch6.addConstraint(Sketcher.Constraint("PointOnObject", 2, 2, -2))
sketch6.addConstraint(Sketcher.Constraint("Equal", 3, 5))
sketch6.addConstraint(Sketcher.Constraint("DistanceX", 0, 2, 0, 1, Q("18 mm")))
sketch6.addConstraint(Sketcher.Constraint("Angle", 3, Q("150 deg")))
sketch6.addConstraint(Sketcher.Constraint("DistanceX", 3, 2, -1, 1, Q("15.2 mm")))
sketch6.addConstraint(Sketcher.Constraint("DistanceY", 4, 1, 4, 2, Q("17.551448 mm")))
sketch6.setExpression("Constraints[13]", "Params.sketch6_width")
pad5 = body.newObject("PartDesign::Pad", "Pad004")
pad5.Profile = sketch6
pad5.setExpression("Length", "Params.pad5_length")
pad5.Reversed = True

sketch7 = body.newObject("Sketcher::SketchObject", "Sketch006")
sketch7.AttachmentSupport = (doc.getObject("YZ_Plane"), [""])
sketch7.MapMode = "FlatFace"
sketch7.AttachmentOffset = App.Placement(App.Vector(0, 0, -18), App.Rotation())
sketch7.addGeometry(Part.LineSegment(App.Vector(25, -17.551448, 0), App.Vector(25, -22.551448, 0)), False)
sketch7.addGeometry(Part.ArcOfCircle(Part.Circle(App.Vector(20, -22.551448, 0), App.Vector(0, 0, 1), 5), math.radians(180), math.radians(360)), False)
sketch7.addGeometry(Part.LineSegment(App.Vector(15, -22.551448, 0), App.Vector(15, -17.551448, 0)), False)
sketch7.addGeometry(Part.LineSegment(App.Vector(15, -17.551448, 0), App.Vector(25, -17.551448, 0)), False)
sketch7.addGeometry(Part.Circle(App.Vector(20, -22.551448, 0), App.Vector(0, 0, 1), 2.25), False)
sketch7.addGeometry(Part.LineSegment(App.Vector(25, 22.551448, 0), App.Vector(25, 17.551448, 0)), False)
sketch7.addGeometry(Part.LineSegment(App.Vector(25, 17.551448, 0), App.Vector(15, 17.551448, 0)), False)
sketch7.addGeometry(Part.LineSegment(App.Vector(15, 17.551448, 0), App.Vector(15, 22.551448, 0)), False)
sketch7.addGeometry(Part.ArcOfCircle(Part.Circle(App.Vector(20, 22.551448, 0), App.Vector(0, 0, 1), 5), math.radians(0), math.radians(180)), False)
sketch7.addGeometry(Part.Circle(App.Vector(20, 22.551448, 0), App.Vector(0, 0, 1), 2.25), False)
sketch7.addConstraint(Sketcher.Constraint("Tangent", 0, 2, 1, 2))
sketch7.addConstraint(Sketcher.Constraint("Tangent", 1, 1, 2, 1))
sketch7.addConstraint(Sketcher.Constraint("Coincident", 2, 2, 3, 1))
sketch7.addConstraint(Sketcher.Constraint("Coincident", 3, 2, 0, 1))
sketch7.addConstraint(Sketcher.Constraint("Coincident", 5, 2, 6, 1))
sketch7.addConstraint(Sketcher.Constraint("Coincident", 6, 2, 7, 1))
sketch7.addConstraint(Sketcher.Constraint("Tangent", 7, 2, 8, 2))
sketch7.addConstraint(Sketcher.Constraint("Tangent", 8, 1, 5, 1))
sketch7.addConstraint(Sketcher.Constraint("Vertical", 0))
sketch7.addConstraint(Sketcher.Constraint("Vertical", 2))
sketch7.addConstraint(Sketcher.Constraint("Horizontal", 3))
sketch7.addConstraint(Sketcher.Constraint("Vertical", 5))
sketch7.addConstraint(Sketcher.Constraint("Horizontal", 6))
sketch7.addConstraint(Sketcher.Constraint("Vertical", 7))
sketch7.addConstraint(Sketcher.Constraint("Coincident", 4, 3, 1, 3))
sketch7.addConstraint(Sketcher.Constraint("Coincident", 9, 3, 8, 3))
sketch7.addConstraint(Sketcher.Constraint("Equal", 1, 8))
sketch7.addConstraint(Sketcher.Constraint("Equal", 4, 9))
sketch7.addConstraint(Sketcher.Constraint("Symmetric", 1, 3, 8, 3, -1))
sketch7.addConstraint(Sketcher.Constraint("Equal", 2, 5))
sketch7.addConstraint(Sketcher.Constraint("Radius", 1, Q("5 mm")))
sketch7.addConstraint(Sketcher.Constraint("Diameter", 4, Q("4.5 mm")))
sketch7.addConstraint(Sketcher.Constraint("DistanceY", 0, 2, 0, 1, Q("5 mm")))
sketch7.addConstraint(Sketcher.Constraint("DistanceX", -1, 1, 1, 3, Q("20 mm")))
sketch7.addConstraint(Sketcher.Constraint("DistanceY", 1, 3, -1, 1, Q("22.551448 mm")))
sketch7.setExpression("Constraints[20]", "Params.sketch7_radius")
sketch7.setExpression("Constraints[21]", "Params.sketch7_diameter")
sketch7.setExpression("Constraints[22]", "Params.sketch7_height")
pad6 = body.newObject("PartDesign::Pad", "Pad005")
pad6.Profile = sketch7
pad6.setExpression("Length", "Params.pad6_length")

sketch8 = body.newObject("Sketcher::SketchObject", "Sketch007")
sketch8.AttachmentSupport = (doc.getObject("XZ_Plane"), [""])
sketch8.MapMode = "FlatFace"
sketch8.AttachmentOffset = App.Placement(App.Vector(0, 0, 2.5), App.Rotation())
sketch8.addGeometry(Part.Circle(App.Vector(0, 0, 0), App.Vector(0, 0, 1), 3.25), False)
sketch8.addConstraint(Sketcher.Constraint("Coincident", 0, 3, -1, 1))
sketch8.addConstraint(Sketcher.Constraint("Diameter", 0, Q("6.5 mm")))
sketch8.setExpression("Constraints[1]", "Params.sketch8_diameter")
pad7 = body.newObject("PartDesign::Pad", "Pad006")
pad7.Profile = sketch8
pad7.setExpression("Length", "Params.pad7_length")
pad7.Reversed = True
doc.recompute()

fillet = body.newObject("PartDesign::Fillet", "Fillet")
fillet.Base = (pad7, edges_at(pad7, [
    (0, 0, 3.25),
    (-6.35, 0, 10.999),
    (-12.7, 12.5, 7.332),
    (6.35, 0, 10.999),
    (0, 12.5, 14.665),
    (12.7, 0, 0),
    (12.7, 12.5, 7.332),
    (6.35, 0, -10.999),
    (12.7, 12.5, -7.332),
    (-6.35, 0, -10.999),
    (0, 12.5, -14.665),
    (-12.7, 0, 0),
    (-12.7, 12.5, -7.332),
    (-6.35, 25, 10.999),
    (6.35, 25, 10.999),
    (12.7, 25, 0),
    (6.35, 25, -10.999),
    (-6.35, 25, -10.999),
    (-12.7, 25, 0),
]))
fillet.setExpression("Radius", "Params.fillet_radius")
doc.recompute()

fillet2 = body.newObject("PartDesign::Fillet", "Fillet001")
fillet2.Base = (fillet, edges_at(fillet, [
    (0, 6, 17.551),
    (0, 6, -17.551),
    (15.2, 6, -8.776),
    (15.2, 6, 8.776),
    (7.6, 25, -13.164),
    (-9, -13, 17.551),
    (-18, -13, 0),
    (-9, -13, -17.551),
    (-6.5, 25, 17.551),
    (-18, 25, 0),
    (-18, 1, -17.551),
    (-6.5, 25, -17.551),
    (-13, 15, -20.051),
    (-15.5, 15, -17.551),
    (-13, 20, -27.551),
    (-13, 25, -20.051),
    (-13, 20, -17.551),
    (-18, 20, -27.551),
    (-18, 15, -20.051),
    (-18, 1, 17.551),
    (-13, 20, 27.551),
    (-13, 15, 20.051),
    (-15.5, 15, 17.551),
    (-13, 20, 17.551),
    (-13, 25, 20.051),
    (-18, 20, 27.551),
    (-18, 15, 20.051),
    (7.6, 25, 13.164),
    (15.2, 25, 0),
    (7.6, -13, -13.164),
    (15.2, -13, 0),
    (7.6, -13, 13.164),
]))
fillet2.setExpression("Radius", "Params.fillet2_radius")
doc.recompute()

fillet3 = body.newObject("PartDesign::Fillet", "Fillet002")
fillet3.Base = (fillet2, edges_at(fillet2, [
    (0, -10.5, 3.25),
    (0, -13, 3.25),
    (-18, 20, -24.801),
    (-13, 20, -24.801),
    (-18, 20, 20.301),
    (-13, 20, 20.301),
]))
fillet3.setExpression("Radius", "Params.fillet3_radius")

doc.recompute()
